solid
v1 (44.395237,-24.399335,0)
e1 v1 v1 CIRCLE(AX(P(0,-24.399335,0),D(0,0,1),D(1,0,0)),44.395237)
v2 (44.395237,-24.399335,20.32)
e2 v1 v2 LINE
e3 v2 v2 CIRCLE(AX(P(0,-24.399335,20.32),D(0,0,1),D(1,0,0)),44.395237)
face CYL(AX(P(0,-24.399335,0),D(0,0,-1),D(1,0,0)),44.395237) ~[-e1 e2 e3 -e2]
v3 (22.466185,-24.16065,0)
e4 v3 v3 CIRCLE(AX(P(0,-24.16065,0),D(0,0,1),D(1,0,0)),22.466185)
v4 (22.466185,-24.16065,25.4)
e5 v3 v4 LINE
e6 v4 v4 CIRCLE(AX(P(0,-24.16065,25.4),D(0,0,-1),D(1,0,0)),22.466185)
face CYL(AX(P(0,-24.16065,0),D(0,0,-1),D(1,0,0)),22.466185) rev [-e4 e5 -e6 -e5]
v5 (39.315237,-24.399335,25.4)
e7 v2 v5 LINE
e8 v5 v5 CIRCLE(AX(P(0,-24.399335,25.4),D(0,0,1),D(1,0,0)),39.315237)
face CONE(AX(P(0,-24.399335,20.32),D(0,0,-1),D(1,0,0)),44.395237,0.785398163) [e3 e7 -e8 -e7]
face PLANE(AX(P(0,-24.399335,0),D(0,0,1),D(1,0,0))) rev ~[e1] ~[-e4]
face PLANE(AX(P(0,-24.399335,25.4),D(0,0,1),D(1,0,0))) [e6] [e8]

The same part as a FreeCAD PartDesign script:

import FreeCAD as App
import Part
import Sketcher
from FreeCAD import Vector
Q = App.Units.Quantity


def edges_at(feature, points):
    """Names of the edges that pass closest to the given points."""
    edges = feature.Shape.Edges
    near = lambda p: min(range(len(edges)), key=lambda i: edges[i].distToShape(Part.Vertex(*p))[0])
    return sorted({f"Edge{near(p) + 1}" for p in points})

doc = App.newDocument("Part")
body = doc.addObject("PartDesign::Body", "Body")

# Sketch on XY plane
sketch1 = body.newObject("Sketcher::SketchObject", "Sketch")
sketch1.AttachmentSupport = (doc.getObject("XY_Plane"), [""])
sketch1.MapMode = "FlatFace"
sketch1.addGeometry(Part.Circle(Vector(0, -24.399335, 0), Vector(0, 0, 1), 44.395237), False)
sketch1.addConstraint([
    Sketcher.Constraint("PointOnObject", 0, 3, -2),
    Sketcher.Constraint("Diameter", 0, 88.790474),
    Sketcher.Constraint("DistanceY", 0, 3, -1, 1, 24.399335),
])
pad1 = body.newObject("PartDesign::Pad", "Pad")
pad1.Profile = sketch1
pad1.Length = Q("1 in")
doc.recompute()

chamfer = body.newObject("PartDesign::Chamfer", "Chamfer")
chamfer.Base = (pad1, edges_at(pad1, [(-44.395, -24.399, 25.4)]))
chamfer.Size = Q("0.2 in")

# Sketch on XY plane
sketch2 = body.newObject("Sketcher::SketchObject", "Sketch001")
sketch2.AttachmentSupport = (doc.getObject("XY_Plane"), [""])
sketch2.MapMode = "FlatFace"
sketch2.addGeometry(Part.Circle(Vector(0, -24.16065, 0), Vector(0, 0, 1), 22.466185), False)
sketch2.addConstraint([
    Sketcher.Constraint("PointOnObject", 0, 3, -2),
    Sketcher.Constraint("Diameter", 0, 44.93237),
    Sketcher.Constraint("DistanceY", 0, 3, -1, 1, 24.16065),
])
pocket1 = body.newObject("PartDesign::Pocket", "Pocket")
pocket1.Profile = sketch2
pocket1.Type = "ThroughAll"
pocket1.Reversed = True

doc.recompute()
